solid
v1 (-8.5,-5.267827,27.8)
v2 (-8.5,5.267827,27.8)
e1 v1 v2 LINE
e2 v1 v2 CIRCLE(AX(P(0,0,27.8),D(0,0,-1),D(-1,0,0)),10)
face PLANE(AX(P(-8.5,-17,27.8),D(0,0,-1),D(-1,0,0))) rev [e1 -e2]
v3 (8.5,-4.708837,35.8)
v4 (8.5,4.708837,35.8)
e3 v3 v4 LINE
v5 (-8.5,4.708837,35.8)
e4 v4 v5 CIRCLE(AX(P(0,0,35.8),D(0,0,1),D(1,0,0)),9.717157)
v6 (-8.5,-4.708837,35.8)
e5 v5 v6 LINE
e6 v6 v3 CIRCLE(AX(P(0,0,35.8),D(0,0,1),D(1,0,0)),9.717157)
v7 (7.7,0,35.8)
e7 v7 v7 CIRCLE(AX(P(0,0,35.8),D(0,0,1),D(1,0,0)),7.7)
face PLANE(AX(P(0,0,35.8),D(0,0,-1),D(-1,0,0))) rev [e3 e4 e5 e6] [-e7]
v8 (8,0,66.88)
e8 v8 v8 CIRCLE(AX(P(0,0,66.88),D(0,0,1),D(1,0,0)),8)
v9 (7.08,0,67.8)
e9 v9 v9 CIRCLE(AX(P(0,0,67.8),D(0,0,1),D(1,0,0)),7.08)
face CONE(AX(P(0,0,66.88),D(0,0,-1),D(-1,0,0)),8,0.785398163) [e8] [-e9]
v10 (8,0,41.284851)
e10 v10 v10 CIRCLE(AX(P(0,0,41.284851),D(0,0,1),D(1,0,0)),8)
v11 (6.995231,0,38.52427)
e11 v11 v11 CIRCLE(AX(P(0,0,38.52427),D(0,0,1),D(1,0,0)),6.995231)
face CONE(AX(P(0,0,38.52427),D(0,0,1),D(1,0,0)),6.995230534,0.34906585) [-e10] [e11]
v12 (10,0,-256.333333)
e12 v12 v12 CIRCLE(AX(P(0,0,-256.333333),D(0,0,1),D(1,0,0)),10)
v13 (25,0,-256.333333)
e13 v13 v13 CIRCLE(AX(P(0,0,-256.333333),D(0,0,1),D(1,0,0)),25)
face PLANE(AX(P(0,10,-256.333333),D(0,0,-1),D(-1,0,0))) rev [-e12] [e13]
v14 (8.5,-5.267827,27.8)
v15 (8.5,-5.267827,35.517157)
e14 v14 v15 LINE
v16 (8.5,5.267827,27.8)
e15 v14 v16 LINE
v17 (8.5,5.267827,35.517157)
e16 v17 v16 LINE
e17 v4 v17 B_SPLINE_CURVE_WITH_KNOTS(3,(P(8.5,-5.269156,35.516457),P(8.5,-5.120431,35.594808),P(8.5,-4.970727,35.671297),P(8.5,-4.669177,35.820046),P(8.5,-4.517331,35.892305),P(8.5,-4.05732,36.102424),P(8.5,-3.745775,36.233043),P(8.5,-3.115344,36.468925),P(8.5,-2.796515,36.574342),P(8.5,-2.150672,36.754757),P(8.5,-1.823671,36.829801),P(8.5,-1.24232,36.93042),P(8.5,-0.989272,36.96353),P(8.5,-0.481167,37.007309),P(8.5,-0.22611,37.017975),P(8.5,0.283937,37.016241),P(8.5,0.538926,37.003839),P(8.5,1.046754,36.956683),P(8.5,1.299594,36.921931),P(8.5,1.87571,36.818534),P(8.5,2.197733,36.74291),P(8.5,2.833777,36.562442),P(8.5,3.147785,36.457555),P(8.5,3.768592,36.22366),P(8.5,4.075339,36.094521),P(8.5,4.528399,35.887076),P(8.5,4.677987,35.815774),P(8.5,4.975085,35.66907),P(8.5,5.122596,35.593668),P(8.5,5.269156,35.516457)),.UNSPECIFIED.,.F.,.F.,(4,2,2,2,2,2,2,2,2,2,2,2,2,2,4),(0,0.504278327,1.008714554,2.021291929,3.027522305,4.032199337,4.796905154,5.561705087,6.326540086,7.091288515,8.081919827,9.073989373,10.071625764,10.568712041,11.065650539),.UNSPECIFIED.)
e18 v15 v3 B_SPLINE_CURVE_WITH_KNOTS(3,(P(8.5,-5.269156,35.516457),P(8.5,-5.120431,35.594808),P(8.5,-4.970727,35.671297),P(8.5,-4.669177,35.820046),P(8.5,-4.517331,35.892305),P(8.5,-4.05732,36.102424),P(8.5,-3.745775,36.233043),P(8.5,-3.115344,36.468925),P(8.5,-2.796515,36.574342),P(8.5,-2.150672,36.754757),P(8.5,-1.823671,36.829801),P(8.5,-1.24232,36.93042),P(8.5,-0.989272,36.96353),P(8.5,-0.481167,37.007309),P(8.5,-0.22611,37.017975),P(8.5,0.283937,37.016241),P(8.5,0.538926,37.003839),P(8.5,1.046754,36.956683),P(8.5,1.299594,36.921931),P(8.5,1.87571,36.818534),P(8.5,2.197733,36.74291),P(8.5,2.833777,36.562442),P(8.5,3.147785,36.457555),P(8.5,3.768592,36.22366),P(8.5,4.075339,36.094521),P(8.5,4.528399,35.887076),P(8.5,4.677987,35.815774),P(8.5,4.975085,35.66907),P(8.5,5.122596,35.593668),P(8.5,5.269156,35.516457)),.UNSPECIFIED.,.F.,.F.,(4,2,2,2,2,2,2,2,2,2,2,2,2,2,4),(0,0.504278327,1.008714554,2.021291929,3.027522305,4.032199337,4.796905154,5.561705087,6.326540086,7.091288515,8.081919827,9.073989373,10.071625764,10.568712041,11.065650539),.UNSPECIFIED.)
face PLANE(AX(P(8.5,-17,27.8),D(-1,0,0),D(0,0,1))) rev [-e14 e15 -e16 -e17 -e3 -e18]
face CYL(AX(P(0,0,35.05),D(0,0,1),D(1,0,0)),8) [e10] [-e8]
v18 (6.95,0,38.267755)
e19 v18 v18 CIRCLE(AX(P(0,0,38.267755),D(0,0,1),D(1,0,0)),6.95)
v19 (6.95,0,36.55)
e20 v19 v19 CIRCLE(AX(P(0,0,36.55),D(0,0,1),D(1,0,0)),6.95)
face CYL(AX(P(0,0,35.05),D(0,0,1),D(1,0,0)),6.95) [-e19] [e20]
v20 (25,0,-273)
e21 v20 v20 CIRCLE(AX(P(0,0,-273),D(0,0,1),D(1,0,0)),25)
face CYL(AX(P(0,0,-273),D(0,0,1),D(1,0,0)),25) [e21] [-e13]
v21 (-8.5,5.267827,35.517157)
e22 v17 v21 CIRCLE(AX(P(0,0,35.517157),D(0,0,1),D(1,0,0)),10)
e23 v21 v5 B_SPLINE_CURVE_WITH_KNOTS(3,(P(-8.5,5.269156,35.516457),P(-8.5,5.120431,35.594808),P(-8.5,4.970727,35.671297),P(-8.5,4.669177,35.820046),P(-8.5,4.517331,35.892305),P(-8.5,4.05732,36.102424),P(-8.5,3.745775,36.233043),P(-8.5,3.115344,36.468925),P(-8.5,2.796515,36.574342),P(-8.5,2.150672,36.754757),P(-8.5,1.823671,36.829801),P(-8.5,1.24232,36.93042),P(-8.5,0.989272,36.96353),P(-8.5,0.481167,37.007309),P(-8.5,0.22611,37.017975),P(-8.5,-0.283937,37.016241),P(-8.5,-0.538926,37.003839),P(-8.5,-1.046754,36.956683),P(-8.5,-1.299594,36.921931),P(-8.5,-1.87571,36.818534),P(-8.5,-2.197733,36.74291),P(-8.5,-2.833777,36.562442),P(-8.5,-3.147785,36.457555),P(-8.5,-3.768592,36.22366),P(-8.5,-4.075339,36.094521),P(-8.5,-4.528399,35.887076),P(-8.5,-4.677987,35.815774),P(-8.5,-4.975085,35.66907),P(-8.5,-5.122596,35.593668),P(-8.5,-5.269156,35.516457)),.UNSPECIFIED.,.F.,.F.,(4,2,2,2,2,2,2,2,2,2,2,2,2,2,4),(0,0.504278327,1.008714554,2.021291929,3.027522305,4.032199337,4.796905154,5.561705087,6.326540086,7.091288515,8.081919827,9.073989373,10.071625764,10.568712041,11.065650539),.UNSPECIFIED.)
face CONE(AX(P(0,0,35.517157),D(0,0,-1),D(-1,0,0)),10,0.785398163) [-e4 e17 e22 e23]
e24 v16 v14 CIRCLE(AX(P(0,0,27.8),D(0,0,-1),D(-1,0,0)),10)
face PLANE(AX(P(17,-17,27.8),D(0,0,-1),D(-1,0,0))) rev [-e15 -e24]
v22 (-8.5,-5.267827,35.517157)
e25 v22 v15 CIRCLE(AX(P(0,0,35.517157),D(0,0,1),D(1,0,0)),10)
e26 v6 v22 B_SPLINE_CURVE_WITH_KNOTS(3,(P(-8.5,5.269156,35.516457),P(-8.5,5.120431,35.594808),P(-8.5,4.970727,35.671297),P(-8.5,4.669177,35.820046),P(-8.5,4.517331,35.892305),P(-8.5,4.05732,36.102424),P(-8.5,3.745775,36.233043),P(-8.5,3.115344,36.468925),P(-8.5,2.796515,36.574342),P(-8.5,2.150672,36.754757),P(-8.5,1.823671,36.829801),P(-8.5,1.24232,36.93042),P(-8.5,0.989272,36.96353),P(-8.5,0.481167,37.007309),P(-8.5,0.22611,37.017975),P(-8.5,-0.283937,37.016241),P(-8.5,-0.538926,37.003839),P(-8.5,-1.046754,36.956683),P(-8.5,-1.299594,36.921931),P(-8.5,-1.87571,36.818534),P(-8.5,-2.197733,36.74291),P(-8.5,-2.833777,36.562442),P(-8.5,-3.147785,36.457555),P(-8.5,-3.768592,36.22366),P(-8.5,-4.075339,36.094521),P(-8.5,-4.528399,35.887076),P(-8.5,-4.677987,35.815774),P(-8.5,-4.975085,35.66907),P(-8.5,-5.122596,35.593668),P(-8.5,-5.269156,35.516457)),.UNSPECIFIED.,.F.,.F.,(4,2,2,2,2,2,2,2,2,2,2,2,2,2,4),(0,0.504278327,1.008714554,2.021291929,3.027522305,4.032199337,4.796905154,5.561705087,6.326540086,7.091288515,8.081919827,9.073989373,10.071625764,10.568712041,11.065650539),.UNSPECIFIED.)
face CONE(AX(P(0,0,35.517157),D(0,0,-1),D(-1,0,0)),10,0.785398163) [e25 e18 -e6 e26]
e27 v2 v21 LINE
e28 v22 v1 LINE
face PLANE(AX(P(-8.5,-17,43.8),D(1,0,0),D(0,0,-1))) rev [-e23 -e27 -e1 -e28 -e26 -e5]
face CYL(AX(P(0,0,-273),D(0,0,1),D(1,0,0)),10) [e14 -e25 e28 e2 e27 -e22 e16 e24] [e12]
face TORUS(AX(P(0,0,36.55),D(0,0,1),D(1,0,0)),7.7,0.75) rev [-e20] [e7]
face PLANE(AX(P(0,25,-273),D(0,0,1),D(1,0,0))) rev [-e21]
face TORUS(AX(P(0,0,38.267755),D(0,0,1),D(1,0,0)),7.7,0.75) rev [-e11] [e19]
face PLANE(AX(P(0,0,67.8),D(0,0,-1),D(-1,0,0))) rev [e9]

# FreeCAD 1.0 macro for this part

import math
import FreeCAD as App
import Part
import Sketcher
from FreeCAD import Vector
Q = App.Units.Quantity


def add_polygon(sketch, points):
    """Adds a closed chain of lines whose ends are joined by coincident constraints."""
    first, n = sketch.GeometryCount, len(points)
    for a, b in zip(points, points[1:] + points[:1]):
        sketch.addGeometry(Part.LineSegment(App.Vector(*a, 0), App.Vector(*b, 0)), False)
    for i in range(n):
        sketch.addConstraint(Sketcher.Constraint("Coincident", first + i, 2, first + (i + 1) % n, 1))

doc = App.newDocument("Part")
body = doc.addObject("PartDesign::Body", "Body")

# Sketch on YZ plane
sketch1 = doc.addObject("Sketcher::SketchObject", "Sketch")
body.addObject(sketch1)
sketch1.AttachmentSupport = (doc.YZ_Plane, [""])
sketch1.MapMode = "FlatFace"
add_polygon(sketch1, [(9.72, 35.8), (0, 35.8), (0, -273), (25, -273), (25, -256.33), (10, -256.33), (10, 35.52)])  # lines 0-6
sketch1.addConstraint([
    Sketcher.Constraint("Horizontal", 0),
    Sketcher.Constraint("Vertical", 1),
    Sketcher.Constraint("Horizontal", 2),
    Sketcher.Constraint("Vertical", 3),
    Sketcher.Constraint("Horizontal", 4),
    Sketcher.Constraint("Vertical", 5),
    Sketcher.Constraint("PointOnObject", 0, 2, -2),
    Sketcher.Constraint("DistanceX", 2, 1, 2, 2, 25.0),
    Sketcher.Constraint("DistanceX", 4, 2, 4, 1, 15.0),
    Sketcher.Constraint("Angle", 6, Q("135 deg")),
    Sketcher.Constraint("DistanceY", 1, 2, 1, 1, 308.8),
    Sketcher.Constraint("DistanceY", 1, 2, -1, 1, 273.0),
    Sketcher.Constraint("Distance", 6, 0.4),
    Sketcher.Constraint("DistanceY", 5, 1, 5, 2, 291.850491),
])
revolution = doc.addObject("PartDesign::Revolution", "Revolution")
body.addObject(revolution)
revolution.Profile = sketch1
revolution.ReferenceAxis = (sketch1, ["V_Axis"])
revolution.Angle = 360

# Sketch on XZ plane
sketch2 = doc.addObject("Sketcher::SketchObject", "Sketch001")
body.addObject(sketch2)
sketch2.AttachmentSupport = (doc.XZ_Plane, [""])
sketch2.MapMode = "FlatFace"
add_polygon(sketch2, [(-17, 62), (17, 62), (17, 28), (8, 28), (8, 44), (-8, 44), (-8, 28), (-17, 28)])  # lines 0-7
sketch2.addConstraint([
    Sketcher.Constraint("Horizontal", 0),
    Sketcher.Constraint("Vertical", 1),
    Sketcher.Constraint("Horizontal", 2),
    Sketcher.Constraint("Vertical", 3),
    Sketcher.Constraint("Horizontal", 4),
    Sketcher.Constraint("Vertical", 5),
    Sketcher.Constraint("Horizontal", 6),
    Sketcher.Constraint("Vertical", 7),
    Sketcher.Constraint("Symmetric", 2, 2, 5, 2, -2),
    Sketcher.Constraint("Equal", 2, 6),
    Sketcher.Constraint("Equal", 0, 1),
    Sketcher.Constraint("DistanceX", 0, 1, 0, 2, 34.0),
    Sketcher.Constraint("DistanceX", 4, 2, 4, 1, 17.0),
    Sketcher.Constraint("DistanceY", 3, 1, 3, 2, 16.0),
    Sketcher.Constraint("DistanceY", -1, 1, 0, 2, 61.8),
])
pocket1 = doc.addObject("PartDesign::Pocket", "Pocket")
body.addObject(pocket1)
pocket1.Profile = sketch2
pocket1.Type = "ThroughAll"
pocket1.Midplane = True

# Sketch on YZ plane
sketch3 = doc.addObject("Sketcher::SketchObject", "Sketch002")
body.addObject(sketch3)
sketch3.AttachmentSupport = (doc.YZ_Plane, [""])
sketch3.MapMode = "FlatFace"
sketch3.addGeometry([
    Part.LineSegment(Vector(7.08, 67.8, 0), Vector(0, 67.8, 0)),  # 0
    Part.LineSegment(Vector(0, 67.8, 0), Vector(0, 35.05, 0)),  # 1
    Part.LineSegment(Vector(0, 35.05, 0), Vector(7.7, 35.05, 0)),  # 2
    Part.LineSegment(Vector(7.7, 35.05, 0), Vector(7.7, 35.8, 0)),  # 3
    Part.ArcOfCircle(Part.Circle(Vector(7.7, 36.55, 0), Vector(0, 0, 1), 0.75), math.radians(180), math.radians(270)),  # 4
    Part.LineSegment(Vector(6.95, 36.55, 0), Vector(6.95, 38.27, 0)),  # 5
    Part.ArcOfCircle(Part.Circle(Vector(7.7, 38.27, 0), Vector(0, 0, 1), 0.75), math.radians(160), math.radians(180)),  # 6
    Part.LineSegment(Vector(7, 38.52, 0), Vector(8, 41.28, 0)),  # 7
    Part.LineSegment(Vector(8, 41.28, 0), Vector(8, 66.88, 0)),  # 8
    Part.LineSegment(Vector(8, 66.88, 0), Vector(7.08, 67.8, 0)),  # 9
], False)
sketch3.addConstraint([
    Sketcher.Constraint("Coincident", 0, 2, 1, 1),
    Sketcher.Constraint("Coincident", 1, 2, 2, 1),
    Sketcher.Constraint("Coincident", 2, 2, 3, 1),
    Sketcher.Constraint("Coincident", 3, 2, 4, 2),
    Sketcher.Constraint("Tangent", 4, 1, 5, 1),
    Sketcher.Constraint("Tangent", 5, 2, 6, 2),
    Sketcher.Constraint("Tangent", 6, 1, 7, 1),
    Sketcher.Constraint("Coincident", 7, 2, 8, 1),
    Sketcher.Constraint("Coincident", 8, 2, 9, 1),
    Sketcher.Constraint("Coincident", 9, 2, 0, 1),
    Sketcher.Constraint("Horizontal", 0),
    Sketcher.Constraint("Vertical", 1),
    Sketcher.Constraint("Horizontal", 2),
    Sketcher.Constraint("Vertical", 3),
    Sketcher.Constraint("Vertical", 5),
    Sketcher.Constraint("Vertical", 8),
    Sketcher.Constraint("Equal", 4, 6),
    Sketcher.Constraint("PointOnObject", 0, 2, -2),
    Sketcher.Constraint("Vertical", 6, 3, 2, 2),
    Sketcher.Constraint("Angle", 7, Q("70 deg")),
    Sketcher.Constraint("Angle", 9, Q("135 deg")),
    Sketcher.Constraint("Radius", 4, 0.75),
    Sketcher.Constraint("DistanceX", 2, 1, 2, 2, 7.7),
    Sketcher.Constraint("DistanceX", -1, 1, 7, 2, 8.0),
    Sketcher.Constraint("DistanceY", 3, 2, 0, 2, 32.0),
    Sketcher.Constraint("DistanceX", 0, 2, 0, 1, 7.08),
    Sketcher.Constraint("DistanceY", 1, 2, 1, 1, 32.75),
    Sketcher.Constraint("DistanceY", -1, 1, 0, 2, 67.8),
    Sketcher.Constraint("DistanceY", 8, 1, 8, 2, 25.595149),
])
revolution2 = doc.addObject("PartDesign::Revolution", "Revolution001")
body.addObject(revolution2)
revolution2.Profile = sketch3
revolution2.ReferenceAxis = (sketch3, ["V_Axis"])
revolution2.Angle = 360

doc.recompute()
